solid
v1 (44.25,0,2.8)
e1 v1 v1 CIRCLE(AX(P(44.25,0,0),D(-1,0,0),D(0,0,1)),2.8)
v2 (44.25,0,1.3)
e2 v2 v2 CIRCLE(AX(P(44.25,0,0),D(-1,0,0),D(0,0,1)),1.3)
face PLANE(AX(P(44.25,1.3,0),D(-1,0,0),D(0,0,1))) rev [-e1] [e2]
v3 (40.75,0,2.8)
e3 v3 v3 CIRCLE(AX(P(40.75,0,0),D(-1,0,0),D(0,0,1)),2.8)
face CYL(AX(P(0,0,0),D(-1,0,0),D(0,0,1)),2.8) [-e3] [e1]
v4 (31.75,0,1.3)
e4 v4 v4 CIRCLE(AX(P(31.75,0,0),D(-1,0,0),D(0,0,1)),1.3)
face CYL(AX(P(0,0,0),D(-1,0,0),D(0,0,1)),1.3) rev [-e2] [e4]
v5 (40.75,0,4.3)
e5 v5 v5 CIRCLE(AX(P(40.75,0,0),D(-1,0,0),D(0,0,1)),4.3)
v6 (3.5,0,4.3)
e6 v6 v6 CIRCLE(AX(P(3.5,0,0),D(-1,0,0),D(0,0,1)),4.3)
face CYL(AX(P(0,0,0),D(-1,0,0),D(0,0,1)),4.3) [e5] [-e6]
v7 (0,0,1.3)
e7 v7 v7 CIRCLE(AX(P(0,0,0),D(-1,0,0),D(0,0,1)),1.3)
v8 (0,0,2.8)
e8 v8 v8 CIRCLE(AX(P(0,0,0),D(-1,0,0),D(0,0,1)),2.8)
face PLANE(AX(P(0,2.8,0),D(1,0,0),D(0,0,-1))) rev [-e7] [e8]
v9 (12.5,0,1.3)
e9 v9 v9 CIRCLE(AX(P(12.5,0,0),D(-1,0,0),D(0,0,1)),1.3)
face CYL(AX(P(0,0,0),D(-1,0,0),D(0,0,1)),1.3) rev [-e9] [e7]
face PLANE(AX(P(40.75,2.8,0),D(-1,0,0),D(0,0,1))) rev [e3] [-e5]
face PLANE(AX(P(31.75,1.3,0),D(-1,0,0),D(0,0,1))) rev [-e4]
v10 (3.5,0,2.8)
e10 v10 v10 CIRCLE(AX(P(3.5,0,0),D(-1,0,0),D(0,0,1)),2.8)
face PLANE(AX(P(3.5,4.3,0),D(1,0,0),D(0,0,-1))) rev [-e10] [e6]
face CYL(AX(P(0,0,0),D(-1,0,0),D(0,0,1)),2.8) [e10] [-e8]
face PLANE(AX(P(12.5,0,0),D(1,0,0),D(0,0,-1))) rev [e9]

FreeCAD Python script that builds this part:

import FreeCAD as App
import Part
import Sketcher

V = App.Vector

doc = App.newDocument("Part")
params = doc.addObject("Spreadsheet::Sheet", "Params")
for row, (alias, value) in enumerate([
    ("sketch1_width", "12.5 mm"),
    ("sketch1_width2", "3.5 mm"),
    ("sketch1_height", "1.3 mm"),
    ("sketch1_height2", "1.5 mm"),
    ("sketch1_width3", "19.25 mm"),
    ("revolution_angle", "360 deg"),
], start=1):
    params.set(f"A{row}", alias)
    params.set(f"B{row}", "=" + value)
    params.setAlias(f"B{row}", alias)

body = doc.addObject("PartDesign::Body", "Body")

sketch1 = body.newObject("Sketcher::SketchObject", "Sketch")
sketch1.AttachmentSupport = (doc.getObject("XY_Plane"), [""])
sketch1.MapMode = "FlatFace"
sketch1.addGeometry(Part.LineSegment(V(0, 1.3, 0), V(12.5, 1.3, 0)), False)
sketch1.addGeometry(Part.LineSegment(V(12.5, 1.3, 0), V(12.5, 0, 0)), False)
sketch1.addGeometry(Part.LineSegment(V(12.5, 0, 0), V(31.8, 0, 0)), False)
sketch1.addGeometry(Part.LineSegment(V(31.8, 0, 0), V(31.8, 1.3, 0)), False)
sketch1.addGeometry(Part.LineSegment(V(31.8, 1.3, 0), V(44.2, 1.3, 0)), False)
sketch1.addGeometry(Part.LineSegment(V(44.2, 1.3, 0), V(44.2, 2.8, 0)), False)
sketch1.addGeometry(Part.LineSegment(V(44.2, 2.8, 0), V(40.8, 2.8, 0)), False)
sketch1.addGeometry(Part.LineSegment(V(40.8, 2.8, 0), V(40.8, 4.3, 0)), False)
sketch1.addGeometry(Part.LineSegment(V(40.8, 4.3, 0), V(3.5, 4.3, 0)), False)
sketch1.addGeometry(Part.LineSegment(V(3.5, 4.3, 0), V(3.5, 2.8, 0)), False)
sketch1.addGeometry(Part.LineSegment(V(3.5, 2.8, 0), V(0, 2.8, 0)), False)
sketch1.addGeometry(Part.LineSegment(V(0, 2.8, 0), V(0, 1.3, 0)), False)
sketch1.addConstraint(Sketcher.Constraint("Coincident", 0, 2, 1, 1))
sketch1.addConstraint(Sketcher.Constraint("Coincident", 1, 2, 2, 1))
sketch1.addConstraint(Sketcher.Constraint("Coincident", 2, 2, 3, 1))
sketch1.addConstraint(Sketcher.Constraint("Coincident", 3, 2, 4, 1))
sketch1.addConstraint(Sketcher.Constraint("Coincident", 4, 2, 5, 1))
sketch1.addConstraint(Sketcher.Constraint("Coincident", 5, 2, 6, 1))
sketch1.addConstraint(Sketcher.Constraint("Coincident", 6, 2, 7, 1))
sketch1.addConstraint(Sketcher.Constraint("Coincident", 7, 2, 8, 1))
sketch1.addConstraint(Sketcher.Constraint("Coincident", 8, 2, 9, 1))
sketch1.addConstraint(Sketcher.Constraint("Coincident", 9, 2, 10, 1))
sketch1.addConstraint(Sketcher.Constraint("Coincident", 10, 2, 11, 1))
sketch1.addConstraint(Sketcher.Constraint("Coincident", 11, 2, 0, 1))
sketch1.addConstraint(Sketcher.Constraint("Horizontal", 0))
sketch1.addConstraint(Sketcher.Constraint("Vertical", 1))
sketch1.addConstraint(Sketcher.Constraint("Horizontal", 2))
sketch1.addConstraint(Sketcher.Constraint("Vertical", 3))
sketch1.addConstraint(Sketcher.Constraint("Horizontal", 4))
sketch1.addConstraint(Sketcher.Constraint("Vertical", 5))
sketch1.addConstraint(Sketcher.Constraint("Horizontal", 6))
sketch1.addConstraint(Sketcher.Constraint("Vertical", 7))
sketch1.addConstraint(Sketcher.Constraint("Horizontal", 8))
sketch1.addConstraint(Sketcher.Constraint("Vertical", 9))
sketch1.addConstraint(Sketcher.Constraint("Horizontal", 10))
sketch1.addConstraint(Sketcher.Constraint("Vertical", 11))
sketch1.addConstraint(Sketcher.Constraint("PointOnObject", 1, 2, -1))
sketch1.addConstraint(Sketcher.Constraint("PointOnObject", 10, 2, -2))
sketch1.addConstraint(Sketcher.Constraint("Horizontal", 0, 2, 3, 2))
sketch1.addConstraint(Sketcher.Constraint("Horizontal", 6, 2, 9, 2))
sketch1.addConstraint(Sketcher.Constraint("Equal", 0, 4))
sketch1.addConstraint(Sketcher.Constraint("Equal", 6, 10))
sketch1.addConstraint(Sketcher.Constraint("Equal", 5, 7))
sketch1.addConstraint(Sketcher.Constraint("DistanceX", 0, 1, 0, 2, 12.5))
sketch1.addConstraint(Sketcher.Constraint("DistanceX", 6, 2, 6, 1, 3.5))
sketch1.addConstraint(Sketcher.Constraint("DistanceY", 1, 2, 1, 1, 1.3))
sketch1.addConstraint(Sketcher.Constraint("DistanceY", 5, 1, 5, 2, 1.5))
sketch1.addConstraint(Sketcher.Constraint("DistanceX", 2, 1, 2, 2, 19.25))
sketch1.setExpression("Constraints[31]", "Params.sketch1_width")
sketch1.setExpression("Constraints[32]", "Params.sketch1_width2")
sketch1.setExpression("Constraints[33]", "Params.sketch1_height")
sketch1.setExpression("Constraints[34]", "Params.sketch1_height2")
sketch1.setExpression("Constraints[35]", "Params.sketch1_width3")
revolution = body.newObject("PartDesign::Revolution", "Revolution")
revolution.Profile = sketch1
revolution.ReferenceAxis = (sketch1, ["H_Axis"])
revolution.setExpression("Angle", "Params.revolution_angle")

doc.recompute()
